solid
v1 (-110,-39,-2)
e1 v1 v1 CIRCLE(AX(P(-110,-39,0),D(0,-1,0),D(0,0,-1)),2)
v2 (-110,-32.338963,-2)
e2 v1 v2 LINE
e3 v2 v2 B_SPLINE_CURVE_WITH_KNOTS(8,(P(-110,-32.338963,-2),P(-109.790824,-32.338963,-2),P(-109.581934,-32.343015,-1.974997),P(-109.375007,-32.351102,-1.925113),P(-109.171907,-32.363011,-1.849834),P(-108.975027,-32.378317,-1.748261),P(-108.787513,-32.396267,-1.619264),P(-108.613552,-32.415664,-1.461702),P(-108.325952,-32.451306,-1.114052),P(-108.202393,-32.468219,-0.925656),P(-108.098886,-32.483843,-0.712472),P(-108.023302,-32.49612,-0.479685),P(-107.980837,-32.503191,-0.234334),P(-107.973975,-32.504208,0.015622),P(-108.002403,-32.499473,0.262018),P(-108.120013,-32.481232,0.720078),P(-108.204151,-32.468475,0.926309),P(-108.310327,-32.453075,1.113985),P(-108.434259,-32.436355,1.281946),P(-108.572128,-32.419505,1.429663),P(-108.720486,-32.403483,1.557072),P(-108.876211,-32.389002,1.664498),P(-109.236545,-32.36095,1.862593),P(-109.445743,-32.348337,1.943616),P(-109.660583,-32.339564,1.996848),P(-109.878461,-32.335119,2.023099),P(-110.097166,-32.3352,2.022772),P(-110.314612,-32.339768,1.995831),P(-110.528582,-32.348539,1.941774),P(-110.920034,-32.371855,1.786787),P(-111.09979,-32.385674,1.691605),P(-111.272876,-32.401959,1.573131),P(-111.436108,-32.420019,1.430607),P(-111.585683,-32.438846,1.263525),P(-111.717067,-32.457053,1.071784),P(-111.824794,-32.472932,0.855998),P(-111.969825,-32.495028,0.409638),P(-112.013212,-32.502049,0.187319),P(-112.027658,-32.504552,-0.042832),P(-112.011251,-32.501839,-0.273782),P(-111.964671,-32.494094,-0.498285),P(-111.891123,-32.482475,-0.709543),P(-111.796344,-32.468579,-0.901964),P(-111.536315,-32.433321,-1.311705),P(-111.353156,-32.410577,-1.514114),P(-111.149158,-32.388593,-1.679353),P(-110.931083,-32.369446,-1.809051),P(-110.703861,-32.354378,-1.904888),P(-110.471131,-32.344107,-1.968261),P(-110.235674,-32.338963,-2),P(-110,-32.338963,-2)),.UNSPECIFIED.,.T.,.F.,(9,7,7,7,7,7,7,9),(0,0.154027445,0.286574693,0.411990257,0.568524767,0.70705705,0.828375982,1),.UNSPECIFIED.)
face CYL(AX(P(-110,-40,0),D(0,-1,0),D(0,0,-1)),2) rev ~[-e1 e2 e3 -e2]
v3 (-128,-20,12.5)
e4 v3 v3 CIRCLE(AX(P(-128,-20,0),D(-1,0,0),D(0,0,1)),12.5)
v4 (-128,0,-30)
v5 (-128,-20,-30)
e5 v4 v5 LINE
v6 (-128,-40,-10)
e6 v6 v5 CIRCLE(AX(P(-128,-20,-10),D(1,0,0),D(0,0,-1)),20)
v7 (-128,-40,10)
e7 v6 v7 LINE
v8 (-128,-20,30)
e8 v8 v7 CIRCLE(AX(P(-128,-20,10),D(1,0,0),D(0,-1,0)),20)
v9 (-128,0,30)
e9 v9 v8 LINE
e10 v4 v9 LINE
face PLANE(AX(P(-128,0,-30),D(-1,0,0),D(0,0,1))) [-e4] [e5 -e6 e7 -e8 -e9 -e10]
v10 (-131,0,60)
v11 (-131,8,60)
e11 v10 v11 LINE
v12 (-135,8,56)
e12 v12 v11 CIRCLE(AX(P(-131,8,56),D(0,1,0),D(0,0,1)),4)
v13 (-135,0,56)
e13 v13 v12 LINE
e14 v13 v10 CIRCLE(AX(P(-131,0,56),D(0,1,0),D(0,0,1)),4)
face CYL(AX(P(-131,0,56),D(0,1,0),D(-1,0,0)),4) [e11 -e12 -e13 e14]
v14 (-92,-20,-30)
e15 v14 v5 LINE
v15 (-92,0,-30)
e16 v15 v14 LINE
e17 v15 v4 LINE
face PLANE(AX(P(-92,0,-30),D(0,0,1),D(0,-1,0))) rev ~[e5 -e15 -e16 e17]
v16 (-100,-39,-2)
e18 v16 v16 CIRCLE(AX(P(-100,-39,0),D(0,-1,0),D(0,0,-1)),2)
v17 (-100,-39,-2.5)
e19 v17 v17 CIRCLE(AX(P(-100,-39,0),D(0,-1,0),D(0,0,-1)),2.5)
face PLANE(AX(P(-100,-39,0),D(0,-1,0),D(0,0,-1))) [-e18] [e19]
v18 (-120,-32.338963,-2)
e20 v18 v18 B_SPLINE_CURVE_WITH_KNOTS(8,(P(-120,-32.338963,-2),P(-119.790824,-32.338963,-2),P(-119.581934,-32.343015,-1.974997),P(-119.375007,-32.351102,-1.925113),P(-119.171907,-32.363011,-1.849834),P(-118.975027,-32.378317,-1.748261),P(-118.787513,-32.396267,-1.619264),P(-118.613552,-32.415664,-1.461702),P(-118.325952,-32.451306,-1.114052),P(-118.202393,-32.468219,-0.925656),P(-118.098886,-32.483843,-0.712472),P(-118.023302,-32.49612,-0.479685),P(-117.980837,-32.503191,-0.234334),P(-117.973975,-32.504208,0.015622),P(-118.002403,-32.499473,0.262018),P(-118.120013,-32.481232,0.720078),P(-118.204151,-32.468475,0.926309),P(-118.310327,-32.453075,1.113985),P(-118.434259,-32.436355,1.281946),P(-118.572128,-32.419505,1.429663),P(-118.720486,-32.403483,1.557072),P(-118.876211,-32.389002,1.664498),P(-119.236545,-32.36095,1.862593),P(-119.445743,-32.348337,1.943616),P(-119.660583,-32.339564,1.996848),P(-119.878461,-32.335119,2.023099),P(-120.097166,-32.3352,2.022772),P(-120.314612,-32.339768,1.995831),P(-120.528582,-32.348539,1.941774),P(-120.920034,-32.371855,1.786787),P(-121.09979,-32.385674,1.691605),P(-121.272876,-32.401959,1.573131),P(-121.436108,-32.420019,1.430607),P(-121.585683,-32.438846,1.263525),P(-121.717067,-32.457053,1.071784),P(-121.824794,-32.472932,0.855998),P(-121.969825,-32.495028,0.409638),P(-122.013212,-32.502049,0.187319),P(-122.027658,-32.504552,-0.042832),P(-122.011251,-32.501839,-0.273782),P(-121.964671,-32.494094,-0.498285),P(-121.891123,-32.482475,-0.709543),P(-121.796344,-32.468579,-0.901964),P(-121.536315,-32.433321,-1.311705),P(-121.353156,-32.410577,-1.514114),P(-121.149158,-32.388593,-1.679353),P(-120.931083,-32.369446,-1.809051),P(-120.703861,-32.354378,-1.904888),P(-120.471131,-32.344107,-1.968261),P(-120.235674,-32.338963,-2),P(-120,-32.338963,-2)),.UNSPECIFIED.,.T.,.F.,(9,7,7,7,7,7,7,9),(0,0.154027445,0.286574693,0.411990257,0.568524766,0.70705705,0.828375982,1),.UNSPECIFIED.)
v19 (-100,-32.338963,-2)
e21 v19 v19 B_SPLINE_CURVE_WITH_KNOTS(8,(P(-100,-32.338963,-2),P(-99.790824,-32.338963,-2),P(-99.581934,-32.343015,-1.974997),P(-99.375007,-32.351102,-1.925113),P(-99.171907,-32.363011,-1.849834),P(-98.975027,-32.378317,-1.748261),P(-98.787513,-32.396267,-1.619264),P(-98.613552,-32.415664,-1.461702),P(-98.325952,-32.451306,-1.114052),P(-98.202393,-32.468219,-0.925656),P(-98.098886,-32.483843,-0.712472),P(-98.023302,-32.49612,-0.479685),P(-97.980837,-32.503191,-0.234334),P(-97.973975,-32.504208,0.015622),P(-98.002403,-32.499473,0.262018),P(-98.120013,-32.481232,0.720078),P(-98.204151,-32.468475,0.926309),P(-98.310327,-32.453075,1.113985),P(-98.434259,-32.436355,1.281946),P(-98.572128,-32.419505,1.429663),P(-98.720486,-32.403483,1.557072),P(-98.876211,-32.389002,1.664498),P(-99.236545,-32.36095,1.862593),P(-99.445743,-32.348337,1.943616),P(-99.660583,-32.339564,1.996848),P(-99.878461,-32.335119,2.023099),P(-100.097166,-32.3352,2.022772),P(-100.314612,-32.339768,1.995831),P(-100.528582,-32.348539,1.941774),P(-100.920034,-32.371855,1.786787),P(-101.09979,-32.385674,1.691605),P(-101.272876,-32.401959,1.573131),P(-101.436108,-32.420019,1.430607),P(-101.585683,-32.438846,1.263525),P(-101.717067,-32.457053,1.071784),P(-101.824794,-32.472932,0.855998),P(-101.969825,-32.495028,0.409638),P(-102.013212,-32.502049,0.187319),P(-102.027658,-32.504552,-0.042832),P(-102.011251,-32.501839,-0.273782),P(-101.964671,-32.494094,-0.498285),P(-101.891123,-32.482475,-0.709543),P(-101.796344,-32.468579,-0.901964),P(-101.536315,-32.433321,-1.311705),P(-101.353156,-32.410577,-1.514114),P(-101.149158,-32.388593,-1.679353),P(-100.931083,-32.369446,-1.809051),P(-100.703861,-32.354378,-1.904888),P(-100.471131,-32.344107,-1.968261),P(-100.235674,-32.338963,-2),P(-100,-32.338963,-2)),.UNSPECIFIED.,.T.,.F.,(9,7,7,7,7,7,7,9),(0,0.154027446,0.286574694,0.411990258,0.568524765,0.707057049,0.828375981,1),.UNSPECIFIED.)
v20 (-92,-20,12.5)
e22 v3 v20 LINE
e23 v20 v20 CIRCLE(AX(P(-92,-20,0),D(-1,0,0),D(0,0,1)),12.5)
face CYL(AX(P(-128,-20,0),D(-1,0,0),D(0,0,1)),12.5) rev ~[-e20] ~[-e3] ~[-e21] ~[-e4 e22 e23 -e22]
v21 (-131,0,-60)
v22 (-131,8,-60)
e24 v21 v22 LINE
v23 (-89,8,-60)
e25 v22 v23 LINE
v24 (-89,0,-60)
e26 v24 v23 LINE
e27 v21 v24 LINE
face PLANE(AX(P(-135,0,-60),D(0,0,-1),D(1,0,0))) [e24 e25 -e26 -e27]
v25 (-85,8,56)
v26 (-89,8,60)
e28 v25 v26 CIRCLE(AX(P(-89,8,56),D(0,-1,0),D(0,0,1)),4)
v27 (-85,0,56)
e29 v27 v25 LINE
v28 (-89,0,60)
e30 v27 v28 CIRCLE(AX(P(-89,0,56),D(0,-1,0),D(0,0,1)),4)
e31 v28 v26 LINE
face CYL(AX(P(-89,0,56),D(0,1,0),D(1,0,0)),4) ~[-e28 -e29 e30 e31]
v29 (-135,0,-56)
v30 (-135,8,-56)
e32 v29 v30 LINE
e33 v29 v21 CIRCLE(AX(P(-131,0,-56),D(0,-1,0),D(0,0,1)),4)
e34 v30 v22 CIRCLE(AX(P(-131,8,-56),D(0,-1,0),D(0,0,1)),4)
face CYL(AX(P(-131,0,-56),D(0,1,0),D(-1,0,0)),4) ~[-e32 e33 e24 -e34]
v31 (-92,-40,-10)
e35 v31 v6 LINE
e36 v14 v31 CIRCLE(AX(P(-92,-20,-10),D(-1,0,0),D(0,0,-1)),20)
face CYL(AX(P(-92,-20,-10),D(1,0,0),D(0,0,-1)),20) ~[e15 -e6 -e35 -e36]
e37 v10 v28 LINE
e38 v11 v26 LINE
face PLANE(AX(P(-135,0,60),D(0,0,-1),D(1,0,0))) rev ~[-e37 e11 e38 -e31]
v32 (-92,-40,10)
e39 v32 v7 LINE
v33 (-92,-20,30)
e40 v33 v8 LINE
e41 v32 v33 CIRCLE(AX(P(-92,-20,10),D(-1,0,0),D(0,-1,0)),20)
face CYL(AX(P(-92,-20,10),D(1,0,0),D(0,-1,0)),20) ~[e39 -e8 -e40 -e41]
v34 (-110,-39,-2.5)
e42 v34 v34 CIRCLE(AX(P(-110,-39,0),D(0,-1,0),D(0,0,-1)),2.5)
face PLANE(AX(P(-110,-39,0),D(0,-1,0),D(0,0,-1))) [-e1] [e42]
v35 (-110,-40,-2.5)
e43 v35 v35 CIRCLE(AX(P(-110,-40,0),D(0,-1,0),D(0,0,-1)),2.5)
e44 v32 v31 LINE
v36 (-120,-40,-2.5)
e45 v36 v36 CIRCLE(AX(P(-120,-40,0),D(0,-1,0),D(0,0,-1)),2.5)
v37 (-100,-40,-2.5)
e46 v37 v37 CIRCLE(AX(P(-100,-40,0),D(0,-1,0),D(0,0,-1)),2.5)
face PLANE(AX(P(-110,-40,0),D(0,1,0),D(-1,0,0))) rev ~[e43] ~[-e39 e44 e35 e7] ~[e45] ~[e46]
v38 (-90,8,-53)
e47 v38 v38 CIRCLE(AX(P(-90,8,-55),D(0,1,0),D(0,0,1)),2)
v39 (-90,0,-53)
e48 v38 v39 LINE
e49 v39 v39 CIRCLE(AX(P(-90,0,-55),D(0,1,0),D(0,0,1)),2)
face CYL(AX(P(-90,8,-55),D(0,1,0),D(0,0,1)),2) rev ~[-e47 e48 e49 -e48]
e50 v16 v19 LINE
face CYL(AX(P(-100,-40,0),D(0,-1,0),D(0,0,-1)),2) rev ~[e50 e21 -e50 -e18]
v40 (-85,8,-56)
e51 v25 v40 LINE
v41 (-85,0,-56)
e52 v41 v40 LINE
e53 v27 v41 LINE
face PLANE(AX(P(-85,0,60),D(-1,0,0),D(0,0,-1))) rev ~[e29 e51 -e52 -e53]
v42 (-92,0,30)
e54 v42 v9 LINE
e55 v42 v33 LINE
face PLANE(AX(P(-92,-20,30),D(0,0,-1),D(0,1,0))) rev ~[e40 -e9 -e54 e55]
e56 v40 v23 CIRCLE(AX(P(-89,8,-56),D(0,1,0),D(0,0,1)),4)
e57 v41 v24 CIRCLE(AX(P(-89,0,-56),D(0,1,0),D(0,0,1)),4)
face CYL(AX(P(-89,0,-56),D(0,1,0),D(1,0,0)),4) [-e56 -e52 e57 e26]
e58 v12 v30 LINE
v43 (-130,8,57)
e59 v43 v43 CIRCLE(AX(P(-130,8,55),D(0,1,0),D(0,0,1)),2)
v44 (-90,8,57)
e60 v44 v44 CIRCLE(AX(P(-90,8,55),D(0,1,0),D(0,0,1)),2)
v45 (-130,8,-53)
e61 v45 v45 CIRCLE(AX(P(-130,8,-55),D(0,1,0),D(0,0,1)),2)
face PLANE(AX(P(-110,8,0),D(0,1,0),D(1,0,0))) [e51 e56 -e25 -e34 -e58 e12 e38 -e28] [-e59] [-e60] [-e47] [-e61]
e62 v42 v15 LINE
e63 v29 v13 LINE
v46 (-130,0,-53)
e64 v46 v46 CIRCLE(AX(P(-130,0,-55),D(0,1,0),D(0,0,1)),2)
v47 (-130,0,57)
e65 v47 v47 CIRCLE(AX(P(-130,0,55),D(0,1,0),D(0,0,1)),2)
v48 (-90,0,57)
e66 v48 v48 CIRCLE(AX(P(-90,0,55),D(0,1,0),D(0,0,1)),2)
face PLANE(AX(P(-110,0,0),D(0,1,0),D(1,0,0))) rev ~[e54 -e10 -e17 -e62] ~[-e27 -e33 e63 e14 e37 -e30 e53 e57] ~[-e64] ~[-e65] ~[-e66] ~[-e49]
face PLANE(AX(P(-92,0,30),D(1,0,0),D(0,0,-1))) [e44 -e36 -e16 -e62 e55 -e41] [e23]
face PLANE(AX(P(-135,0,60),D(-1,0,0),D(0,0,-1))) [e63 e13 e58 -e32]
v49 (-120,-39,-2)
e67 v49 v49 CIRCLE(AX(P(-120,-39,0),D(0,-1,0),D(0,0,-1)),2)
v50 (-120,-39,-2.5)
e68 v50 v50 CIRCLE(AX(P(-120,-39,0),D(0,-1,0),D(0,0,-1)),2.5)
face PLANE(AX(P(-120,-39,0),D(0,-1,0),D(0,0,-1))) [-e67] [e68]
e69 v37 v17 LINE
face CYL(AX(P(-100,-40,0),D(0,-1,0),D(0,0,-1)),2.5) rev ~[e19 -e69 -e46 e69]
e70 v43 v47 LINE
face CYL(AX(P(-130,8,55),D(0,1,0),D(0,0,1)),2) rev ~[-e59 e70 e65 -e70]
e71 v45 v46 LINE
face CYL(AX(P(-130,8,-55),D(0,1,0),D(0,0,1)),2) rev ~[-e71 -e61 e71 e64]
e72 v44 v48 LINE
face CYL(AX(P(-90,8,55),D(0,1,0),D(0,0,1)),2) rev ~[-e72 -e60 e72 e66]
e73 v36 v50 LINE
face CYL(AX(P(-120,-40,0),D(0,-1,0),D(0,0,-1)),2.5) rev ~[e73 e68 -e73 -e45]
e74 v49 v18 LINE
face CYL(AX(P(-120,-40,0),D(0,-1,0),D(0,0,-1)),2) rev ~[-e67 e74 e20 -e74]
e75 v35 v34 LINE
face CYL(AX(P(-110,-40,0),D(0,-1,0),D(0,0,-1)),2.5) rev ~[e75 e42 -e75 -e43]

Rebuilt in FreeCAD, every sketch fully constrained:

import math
import FreeCAD as App
import Part
import Sketcher

V = App.Vector
Q = App.Units.Quantity


def edges_at(feature, points):
    """Names of the edges that pass closest to the given points."""
    edges = feature.Shape.Edges
    near = lambda p: min(range(len(edges)), key=lambda i: edges[i].distToShape(Part.Vertex(*p))[0])
    return sorted({f"Edge{near(p) + 1}" for p in points})


def add_polygon(sketch, points):
    """Adds a closed chain of lines whose ends are joined by coincident constraints."""
    first, n = sketch.GeometryCount, len(points)
    for a, b in zip(points, points[1:] + points[:1]):
        sketch.addGeometry(Part.LineSegment(App.Vector(*a, 0), App.Vector(*b, 0)), False)
    for i in range(n):
        sketch.addConstraint(Sketcher.Constraint("Coincident", first + i, 2, first + (i + 1) % n, 1))

doc = App.newDocument("Part")
body = doc.addObject("PartDesign::Body", "Body")

# Sketch on XZ plane
sketch1 = body.newObject("Sketcher::SketchObject", "Sketch")
sketch1.AttachmentSupport = (doc.getObject("XZ_Plane"), [""])
sketch1.MapMode = "FlatFace"
add_polygon(sketch1, [(-135, -60), (-135, 60), (-85, 60), (-85, -60)])  # lines 0-3
sketch1.addConstraint(Sketcher.Constraint("Vertical", 0))
sketch1.addConstraint(Sketcher.Constraint("Horizontal", 1))
sketch1.addConstraint(Sketcher.Constraint("Vertical", 2))
sketch1.addConstraint(Sketcher.Constraint("Horizontal", 3))
sketch1.addConstraint(Sketcher.Constraint("DistanceX", 1, 1, 1, 2, Q("50 mm")))
sketch1.addConstraint(Sketcher.Constraint("DistanceY", 0, 1, 0, 2, Q("120 mm")))
sketch1.addConstraint(Sketcher.Constraint("DistanceX", 0, 2, -1, 1, Q("135 mm")))
sketch1.addConstraint(Sketcher.Constraint("DistanceY", -1, 1, 0, 2, Q("60 mm")))
pad1 = body.newObject("PartDesign::Pad", "Pad")
pad1.Profile = sketch1
pad1.Length = 8
pad1.Reversed = True

# Sketch on XZ plane
sketch2 = body.newObject("Sketcher::SketchObject", "Sketch001")
sketch2.AttachmentSupport = (doc.getObject("XZ_Plane"), [""])
sketch2.MapMode = "FlatFace"
sketch2.AttachmentOffset = App.Placement(V(0, 0, -8), App.Rotation())
sketch2.addGeometry(Part.Circle(V(-130, -55, 0), V(0, 0, 1), 2), False)
sketch2.addConstraint(Sketcher.Constraint("Diameter", 0, Q("4 mm")))
sketch2.addConstraint(Sketcher.Constraint("DistanceX", 0, 3, -1, 1, Q("130 mm")))
sketch2.addConstraint(Sketcher.Constraint("DistanceY", 0, 3, -1, 1, Q("55 mm")))
pocket1 = body.newObject("PartDesign::Pocket", "Pocket")
pocket1.Profile = sketch2
pocket1.Length = 10
pocket1.Reversed = True
doc.recompute()

linearpattern = body.newObject("PartDesign::LinearPattern", "LinearPattern")
linearpattern.Originals = [pocket1]
linearpattern.Direction = (doc.getObject("X_Axis"), [""])
linearpattern.Mode = "offset"
linearpattern.Offset = 40
linearpattern.Occurrences = 2
body.Tip = linearpattern
doc.recompute()

linearpattern2 = body.newObject("PartDesign::LinearPattern", "LinearPattern001")
linearpattern2.Originals = [pocket1]
linearpattern2.Direction = (doc.getObject("Z_Axis"), [""])
linearpattern2.Mode = "offset"
linearpattern2.Offset = 110
linearpattern2.Occurrences = 2
body.Tip = linearpattern2

# Sketch on XZ plane
sketch3 = body.newObject("Sketcher::SketchObject", "Sketch002")
sketch3.AttachmentSupport = (doc.getObject("XZ_Plane"), [""])
sketch3.MapMode = "FlatFace"
sketch3.AttachmentOffset = App.Placement(V(0, 0, -8), App.Rotation())
sketch3.addGeometry(Part.Circle(V(-90, 55, 0), V(0, 0, 1), 2), False)
sketch3.addConstraint(Sketcher.Constraint("Diameter", 0, Q("4 mm")))
sketch3.addConstraint(Sketcher.Constraint("DistanceX", 0, 3, -1, 1, Q("90 mm")))
sketch3.addConstraint(Sketcher.Constraint("DistanceY", -1, 1, 0, 3, Q("55 mm")))
pocket2 = body.newObject("PartDesign::Pocket", "Pocket001")
pocket2.Profile = sketch3
pocket2.Length = 10
pocket2.Reversed = True

# Sketch on XZ plane
sketch4 = body.newObject("Sketcher::SketchObject", "Sketch003")
sketch4.AttachmentSupport = (doc.getObject("XZ_Plane"), [""])
sketch4.MapMode = "FlatFace"
sketch4.addGeometry(Part.LineSegment(V(-92, -30, 0), V(-92, 30, 0)), False)
sketch4.addGeometry(Part.ArcOfCircle(Part.Circle(V(-110, 30, 0), V(0, 0, 1), 18), math.radians(0), math.radians(180)), False)
sketch4.addGeometry(Part.LineSegment(V(-128, 30, 0), V(-128, -30, 0)), False)
sketch4.addGeometry(Part.ArcOfCircle(Part.Circle(V(-110, -30, 0), V(0, 0, 1), 18), math.radians(180), math.radians(360)), False)
sketch4.addConstraint(Sketcher.Constraint("Tangent", 0, 2, 1, 1))
sketch4.addConstraint(Sketcher.Constraint("Tangent", 1, 2, 2, 1))
sketch4.addConstraint(Sketcher.Constraint("Tangent", 2, 2, 3, 1))
sketch4.addConstraint(Sketcher.Constraint("Tangent", 3, 2, 0, 1))
sketch4.addConstraint(Sketcher.Constraint("Vertical", 0))
sketch4.addConstraint(Sketcher.Constraint("Vertical", 2))
sketch4.addConstraint(Sketcher.Constraint("Radius", 1, Q("18 mm")))
sketch4.addConstraint(Sketcher.Constraint("DistanceY", 0, 1, 0, 2, Q("60 mm")))
sketch4.addConstraint(Sketcher.Constraint("DistanceX", 1, 3, -1, 1, Q("110 mm")))
sketch4.addConstraint(Sketcher.Constraint("DistanceY", -1, 1, 1, 3, Q("30 mm")))
pad2 = body.newObject("PartDesign::Pad", "Pad001")
pad2.Profile = sketch4
pad2.Length = 40

# Sketch on YZ plane
sketch5 = body.newObject("Sketcher::SketchObject", "Sketch004")
sketch5.AttachmentSupport = (doc.getObject("YZ_Plane"), [""])
sketch5.MapMode = "FlatFace"
sketch5.AttachmentOffset = App.Placement(V(0, 0, -128), App.Rotation())
sketch5.addGeometry(Part.Circle(V(-20, 0, 0), V(0, 0, 1), 12.5), False)
sketch5.addConstraint(Sketcher.Constraint("PointOnObject", 0, 3, -1))
sketch5.addConstraint(Sketcher.Constraint("Diameter", 0, Q("25 mm")))
sketch5.addConstraint(Sketcher.Constraint("DistanceX", 0, 3, -1, 1, Q("20 mm")))
pocket3 = body.newObject("PartDesign::Pocket", "Pocket002")
pocket3.Profile = sketch5
pocket3.Type = "ThroughAll"
pocket3.Reversed = True

# Sketch on YZ plane
sketch6 = body.newObject("Sketcher::SketchObject", "Sketch005")
sketch6.AttachmentSupport = (doc.getObject("YZ_Plane"), [""])
sketch6.MapMode = "FlatFace"
sketch6.AttachmentOffset = App.Placement(V(0, 0, -92), App.Rotation())
sketch6.addGeometry(Part.LineSegment(V(0, 30, 0), V(0, 48, 0)), False)
sketch6.addGeometry(Part.LineSegment(V(0, 48, 0), V(-40, 48, 0)), False)
sketch6.addGeometry(Part.LineSegment(V(-40, 48, 0), V(-40, 10, 0)), False)
sketch6.addGeometry(Part.ArcOfCircle(Part.Circle(V(-20, 10, 0), V(0, 0, 1), 20), math.radians(90), math.radians(180)), False)
sketch6.addGeometry(Part.LineSegment(V(-20, 30, 0), V(0, 30, 0)), False)
sketch6.addGeometry(Part.ArcOfCircle(Part.Circle(V(-20, -10, 0), V(0, 0, 1), 20), math.radians(180), math.radians(270)), False)
sketch6.addGeometry(Part.LineSegment(V(-40, -10, 0), V(-40, -48, 0)), False)
sketch6.addGeometry(Part.LineSegment(V(-40, -48, 0), V(0, -48, 0)), False)
sketch6.addGeometry(Part.LineSegment(V(0, -48, 0), V(0, -30, 0)), False)
sketch6.addGeometry(Part.LineSegment(V(0, -30, 0), V(-20, -30, 0)), False)
sketch6.addConstraint(Sketcher.Constraint("Coincident", 0, 2, 1, 1))
sketch6.addConstraint(Sketcher.Constraint("Coincident", 1, 2, 2, 1))
sketch6.addConstraint(Sketcher.Constraint("Tangent", 2, 2, 3, 2))
sketch6.addConstraint(Sketcher.Constraint("Tangent", 3, 1, 4, 1))
sketch6.addConstraint(Sketcher.Constraint("Coincident", 4, 2, 0, 1))
sketch6.addConstraint(Sketcher.Constraint("Tangent", 5, 1, 6, 1))
sketch6.addConstraint(Sketcher.Constraint("Coincident", 6, 2, 7, 1))
sketch6.addConstraint(Sketcher.Constraint("Coincident", 7, 2, 8, 1))
sketch6.addConstraint(Sketcher.Constraint("Coincident", 8, 2, 9, 1))
sketch6.addConstraint(Sketcher.Constraint("Tangent", 9, 2, 5, 2))
sketch6.addConstraint(Sketcher.Constraint("Vertical", 0))
sketch6.addConstraint(Sketcher.Constraint("Horizontal", 1))
sketch6.addConstraint(Sketcher.Constraint("Vertical", 2))
sketch6.addConstraint(Sketcher.Constraint("Horizontal", 4))
sketch6.addConstraint(Sketcher.Constraint("Vertical", 6))
sketch6.addConstraint(Sketcher.Constraint("Horizontal", 7))
sketch6.addConstraint(Sketcher.Constraint("Vertical", 8))
sketch6.addConstraint(Sketcher.Constraint("Horizontal", 9))
sketch6.addConstraint(Sketcher.Constraint("Equal", 3, 5))
sketch6.addConstraint(Sketcher.Constraint("Symmetric", 0, 2, 7, 2, -1, 1))
sketch6.addConstraint(Sketcher.Constraint("Symmetric", 3, 3, 5, 3, -1))
sketch6.addConstraint(Sketcher.Constraint("PointOnObject", 0, 2, -2))
sketch6.addConstraint(Sketcher.Constraint("Radius", 3, Q("20 mm")))
sketch6.addConstraint(Sketcher.Constraint("DistanceX", 1, 2, 1, 1, Q("40 mm")))
sketch6.addConstraint(Sketcher.Constraint("DistanceY", 0, 1, 0, 2, Q("18 mm")))
sketch6.addConstraint(Sketcher.Constraint("DistanceY", -1, 1, 3, 3, Q("10 mm")))
pocket4 = body.newObject("PartDesign::Pocket", "Pocket003")
pocket4.Profile = sketch6
pocket4.Type = "ThroughAll"
doc.recompute()

fillet = body.newObject("PartDesign::Fillet", "Fillet")
fillet.Base = (pocket4, edges_at(pocket4, [
    (-85, 4, 60),
    (-135, 4, 60),
    (-135, 4, -60),
    (-85, 4, -60),
]))
fillet.Radius = 4

# Sketch on XZ plane
sketch7 = body.newObject("Sketcher::SketchObject", "Sketch006")
sketch7.AttachmentSupport = (doc.getObject("XZ_Plane"), [""])
sketch7.MapMode = "FlatFace"
sketch7.AttachmentOffset = App.Placement(V(0, 0, 40), App.Rotation())
sketch7.addGeometry(Part.Circle(V(-110, 0, 0), V(0, 0, 1), 2), False)
sketch7.addConstraint(Sketcher.Constraint("PointOnObject", 0, 3, -1))
sketch7.addConstraint(Sketcher.Constraint("Diameter", 0, Q("4 mm")))
sketch7.addConstraint(Sketcher.Constraint("DistanceX", 0, 3, -1, 1, Q("110 mm")))
pocket5 = body.newObject("PartDesign::Pocket", "Pocket004")
pocket5.Profile = sketch7
pocket5.Length = 10

# Sketch on XZ plane
sketch8 = body.newObject("Sketcher::SketchObject", "Sketch007")
sketch8.AttachmentSupport = (doc.getObject("XZ_Plane"), [""])
sketch8.MapMode = "FlatFace"
sketch8.AttachmentOffset = App.Placement(V(0, 0, 40), App.Rotation())
sketch8.addGeometry(Part.Circle(V(-110, 0, 0), V(0, 0, 1), 2.5), False)
sketch8.addConstraint(Sketcher.Constraint("PointOnObject", 0, 3, -1))
sketch8.addConstraint(Sketcher.Constraint("Diameter", 0, Q("5 mm")))
sketch8.addConstraint(Sketcher.Constraint("DistanceX", 0, 3, -1, 1, Q("110 mm")))
pocket6 = body.newObject("PartDesign::Pocket", "Pocket005")
pocket6.Profile = sketch8
pocket6.Length = 1
doc.recompute()

linearpattern3 = body.newObject("PartDesign::LinearPattern", "LinearPattern002")
linearpattern3.Originals = [pocket5, pocket6]
linearpattern3.Direction = (doc.getObject("X_Axis"), [""])
linearpattern3.Mode = "offset"
linearpattern3.Offset = 10
linearpattern3.Occurrences = 2
body.Tip = linearpattern3
doc.recompute()

linearpattern4 = body.newObject("PartDesign::LinearPattern", "LinearPattern003")
linearpattern4.Originals = [pocket5, pocket6]
linearpattern4.Direction = (doc.getObject("X_Axis"), [""])
linearpattern4.Mode = "offset"
linearpattern4.Offset = 10
linearpattern4.Occurrences = 2
linearpattern4.Reversed = True
body.Tip = linearpattern4

doc.recompute()
